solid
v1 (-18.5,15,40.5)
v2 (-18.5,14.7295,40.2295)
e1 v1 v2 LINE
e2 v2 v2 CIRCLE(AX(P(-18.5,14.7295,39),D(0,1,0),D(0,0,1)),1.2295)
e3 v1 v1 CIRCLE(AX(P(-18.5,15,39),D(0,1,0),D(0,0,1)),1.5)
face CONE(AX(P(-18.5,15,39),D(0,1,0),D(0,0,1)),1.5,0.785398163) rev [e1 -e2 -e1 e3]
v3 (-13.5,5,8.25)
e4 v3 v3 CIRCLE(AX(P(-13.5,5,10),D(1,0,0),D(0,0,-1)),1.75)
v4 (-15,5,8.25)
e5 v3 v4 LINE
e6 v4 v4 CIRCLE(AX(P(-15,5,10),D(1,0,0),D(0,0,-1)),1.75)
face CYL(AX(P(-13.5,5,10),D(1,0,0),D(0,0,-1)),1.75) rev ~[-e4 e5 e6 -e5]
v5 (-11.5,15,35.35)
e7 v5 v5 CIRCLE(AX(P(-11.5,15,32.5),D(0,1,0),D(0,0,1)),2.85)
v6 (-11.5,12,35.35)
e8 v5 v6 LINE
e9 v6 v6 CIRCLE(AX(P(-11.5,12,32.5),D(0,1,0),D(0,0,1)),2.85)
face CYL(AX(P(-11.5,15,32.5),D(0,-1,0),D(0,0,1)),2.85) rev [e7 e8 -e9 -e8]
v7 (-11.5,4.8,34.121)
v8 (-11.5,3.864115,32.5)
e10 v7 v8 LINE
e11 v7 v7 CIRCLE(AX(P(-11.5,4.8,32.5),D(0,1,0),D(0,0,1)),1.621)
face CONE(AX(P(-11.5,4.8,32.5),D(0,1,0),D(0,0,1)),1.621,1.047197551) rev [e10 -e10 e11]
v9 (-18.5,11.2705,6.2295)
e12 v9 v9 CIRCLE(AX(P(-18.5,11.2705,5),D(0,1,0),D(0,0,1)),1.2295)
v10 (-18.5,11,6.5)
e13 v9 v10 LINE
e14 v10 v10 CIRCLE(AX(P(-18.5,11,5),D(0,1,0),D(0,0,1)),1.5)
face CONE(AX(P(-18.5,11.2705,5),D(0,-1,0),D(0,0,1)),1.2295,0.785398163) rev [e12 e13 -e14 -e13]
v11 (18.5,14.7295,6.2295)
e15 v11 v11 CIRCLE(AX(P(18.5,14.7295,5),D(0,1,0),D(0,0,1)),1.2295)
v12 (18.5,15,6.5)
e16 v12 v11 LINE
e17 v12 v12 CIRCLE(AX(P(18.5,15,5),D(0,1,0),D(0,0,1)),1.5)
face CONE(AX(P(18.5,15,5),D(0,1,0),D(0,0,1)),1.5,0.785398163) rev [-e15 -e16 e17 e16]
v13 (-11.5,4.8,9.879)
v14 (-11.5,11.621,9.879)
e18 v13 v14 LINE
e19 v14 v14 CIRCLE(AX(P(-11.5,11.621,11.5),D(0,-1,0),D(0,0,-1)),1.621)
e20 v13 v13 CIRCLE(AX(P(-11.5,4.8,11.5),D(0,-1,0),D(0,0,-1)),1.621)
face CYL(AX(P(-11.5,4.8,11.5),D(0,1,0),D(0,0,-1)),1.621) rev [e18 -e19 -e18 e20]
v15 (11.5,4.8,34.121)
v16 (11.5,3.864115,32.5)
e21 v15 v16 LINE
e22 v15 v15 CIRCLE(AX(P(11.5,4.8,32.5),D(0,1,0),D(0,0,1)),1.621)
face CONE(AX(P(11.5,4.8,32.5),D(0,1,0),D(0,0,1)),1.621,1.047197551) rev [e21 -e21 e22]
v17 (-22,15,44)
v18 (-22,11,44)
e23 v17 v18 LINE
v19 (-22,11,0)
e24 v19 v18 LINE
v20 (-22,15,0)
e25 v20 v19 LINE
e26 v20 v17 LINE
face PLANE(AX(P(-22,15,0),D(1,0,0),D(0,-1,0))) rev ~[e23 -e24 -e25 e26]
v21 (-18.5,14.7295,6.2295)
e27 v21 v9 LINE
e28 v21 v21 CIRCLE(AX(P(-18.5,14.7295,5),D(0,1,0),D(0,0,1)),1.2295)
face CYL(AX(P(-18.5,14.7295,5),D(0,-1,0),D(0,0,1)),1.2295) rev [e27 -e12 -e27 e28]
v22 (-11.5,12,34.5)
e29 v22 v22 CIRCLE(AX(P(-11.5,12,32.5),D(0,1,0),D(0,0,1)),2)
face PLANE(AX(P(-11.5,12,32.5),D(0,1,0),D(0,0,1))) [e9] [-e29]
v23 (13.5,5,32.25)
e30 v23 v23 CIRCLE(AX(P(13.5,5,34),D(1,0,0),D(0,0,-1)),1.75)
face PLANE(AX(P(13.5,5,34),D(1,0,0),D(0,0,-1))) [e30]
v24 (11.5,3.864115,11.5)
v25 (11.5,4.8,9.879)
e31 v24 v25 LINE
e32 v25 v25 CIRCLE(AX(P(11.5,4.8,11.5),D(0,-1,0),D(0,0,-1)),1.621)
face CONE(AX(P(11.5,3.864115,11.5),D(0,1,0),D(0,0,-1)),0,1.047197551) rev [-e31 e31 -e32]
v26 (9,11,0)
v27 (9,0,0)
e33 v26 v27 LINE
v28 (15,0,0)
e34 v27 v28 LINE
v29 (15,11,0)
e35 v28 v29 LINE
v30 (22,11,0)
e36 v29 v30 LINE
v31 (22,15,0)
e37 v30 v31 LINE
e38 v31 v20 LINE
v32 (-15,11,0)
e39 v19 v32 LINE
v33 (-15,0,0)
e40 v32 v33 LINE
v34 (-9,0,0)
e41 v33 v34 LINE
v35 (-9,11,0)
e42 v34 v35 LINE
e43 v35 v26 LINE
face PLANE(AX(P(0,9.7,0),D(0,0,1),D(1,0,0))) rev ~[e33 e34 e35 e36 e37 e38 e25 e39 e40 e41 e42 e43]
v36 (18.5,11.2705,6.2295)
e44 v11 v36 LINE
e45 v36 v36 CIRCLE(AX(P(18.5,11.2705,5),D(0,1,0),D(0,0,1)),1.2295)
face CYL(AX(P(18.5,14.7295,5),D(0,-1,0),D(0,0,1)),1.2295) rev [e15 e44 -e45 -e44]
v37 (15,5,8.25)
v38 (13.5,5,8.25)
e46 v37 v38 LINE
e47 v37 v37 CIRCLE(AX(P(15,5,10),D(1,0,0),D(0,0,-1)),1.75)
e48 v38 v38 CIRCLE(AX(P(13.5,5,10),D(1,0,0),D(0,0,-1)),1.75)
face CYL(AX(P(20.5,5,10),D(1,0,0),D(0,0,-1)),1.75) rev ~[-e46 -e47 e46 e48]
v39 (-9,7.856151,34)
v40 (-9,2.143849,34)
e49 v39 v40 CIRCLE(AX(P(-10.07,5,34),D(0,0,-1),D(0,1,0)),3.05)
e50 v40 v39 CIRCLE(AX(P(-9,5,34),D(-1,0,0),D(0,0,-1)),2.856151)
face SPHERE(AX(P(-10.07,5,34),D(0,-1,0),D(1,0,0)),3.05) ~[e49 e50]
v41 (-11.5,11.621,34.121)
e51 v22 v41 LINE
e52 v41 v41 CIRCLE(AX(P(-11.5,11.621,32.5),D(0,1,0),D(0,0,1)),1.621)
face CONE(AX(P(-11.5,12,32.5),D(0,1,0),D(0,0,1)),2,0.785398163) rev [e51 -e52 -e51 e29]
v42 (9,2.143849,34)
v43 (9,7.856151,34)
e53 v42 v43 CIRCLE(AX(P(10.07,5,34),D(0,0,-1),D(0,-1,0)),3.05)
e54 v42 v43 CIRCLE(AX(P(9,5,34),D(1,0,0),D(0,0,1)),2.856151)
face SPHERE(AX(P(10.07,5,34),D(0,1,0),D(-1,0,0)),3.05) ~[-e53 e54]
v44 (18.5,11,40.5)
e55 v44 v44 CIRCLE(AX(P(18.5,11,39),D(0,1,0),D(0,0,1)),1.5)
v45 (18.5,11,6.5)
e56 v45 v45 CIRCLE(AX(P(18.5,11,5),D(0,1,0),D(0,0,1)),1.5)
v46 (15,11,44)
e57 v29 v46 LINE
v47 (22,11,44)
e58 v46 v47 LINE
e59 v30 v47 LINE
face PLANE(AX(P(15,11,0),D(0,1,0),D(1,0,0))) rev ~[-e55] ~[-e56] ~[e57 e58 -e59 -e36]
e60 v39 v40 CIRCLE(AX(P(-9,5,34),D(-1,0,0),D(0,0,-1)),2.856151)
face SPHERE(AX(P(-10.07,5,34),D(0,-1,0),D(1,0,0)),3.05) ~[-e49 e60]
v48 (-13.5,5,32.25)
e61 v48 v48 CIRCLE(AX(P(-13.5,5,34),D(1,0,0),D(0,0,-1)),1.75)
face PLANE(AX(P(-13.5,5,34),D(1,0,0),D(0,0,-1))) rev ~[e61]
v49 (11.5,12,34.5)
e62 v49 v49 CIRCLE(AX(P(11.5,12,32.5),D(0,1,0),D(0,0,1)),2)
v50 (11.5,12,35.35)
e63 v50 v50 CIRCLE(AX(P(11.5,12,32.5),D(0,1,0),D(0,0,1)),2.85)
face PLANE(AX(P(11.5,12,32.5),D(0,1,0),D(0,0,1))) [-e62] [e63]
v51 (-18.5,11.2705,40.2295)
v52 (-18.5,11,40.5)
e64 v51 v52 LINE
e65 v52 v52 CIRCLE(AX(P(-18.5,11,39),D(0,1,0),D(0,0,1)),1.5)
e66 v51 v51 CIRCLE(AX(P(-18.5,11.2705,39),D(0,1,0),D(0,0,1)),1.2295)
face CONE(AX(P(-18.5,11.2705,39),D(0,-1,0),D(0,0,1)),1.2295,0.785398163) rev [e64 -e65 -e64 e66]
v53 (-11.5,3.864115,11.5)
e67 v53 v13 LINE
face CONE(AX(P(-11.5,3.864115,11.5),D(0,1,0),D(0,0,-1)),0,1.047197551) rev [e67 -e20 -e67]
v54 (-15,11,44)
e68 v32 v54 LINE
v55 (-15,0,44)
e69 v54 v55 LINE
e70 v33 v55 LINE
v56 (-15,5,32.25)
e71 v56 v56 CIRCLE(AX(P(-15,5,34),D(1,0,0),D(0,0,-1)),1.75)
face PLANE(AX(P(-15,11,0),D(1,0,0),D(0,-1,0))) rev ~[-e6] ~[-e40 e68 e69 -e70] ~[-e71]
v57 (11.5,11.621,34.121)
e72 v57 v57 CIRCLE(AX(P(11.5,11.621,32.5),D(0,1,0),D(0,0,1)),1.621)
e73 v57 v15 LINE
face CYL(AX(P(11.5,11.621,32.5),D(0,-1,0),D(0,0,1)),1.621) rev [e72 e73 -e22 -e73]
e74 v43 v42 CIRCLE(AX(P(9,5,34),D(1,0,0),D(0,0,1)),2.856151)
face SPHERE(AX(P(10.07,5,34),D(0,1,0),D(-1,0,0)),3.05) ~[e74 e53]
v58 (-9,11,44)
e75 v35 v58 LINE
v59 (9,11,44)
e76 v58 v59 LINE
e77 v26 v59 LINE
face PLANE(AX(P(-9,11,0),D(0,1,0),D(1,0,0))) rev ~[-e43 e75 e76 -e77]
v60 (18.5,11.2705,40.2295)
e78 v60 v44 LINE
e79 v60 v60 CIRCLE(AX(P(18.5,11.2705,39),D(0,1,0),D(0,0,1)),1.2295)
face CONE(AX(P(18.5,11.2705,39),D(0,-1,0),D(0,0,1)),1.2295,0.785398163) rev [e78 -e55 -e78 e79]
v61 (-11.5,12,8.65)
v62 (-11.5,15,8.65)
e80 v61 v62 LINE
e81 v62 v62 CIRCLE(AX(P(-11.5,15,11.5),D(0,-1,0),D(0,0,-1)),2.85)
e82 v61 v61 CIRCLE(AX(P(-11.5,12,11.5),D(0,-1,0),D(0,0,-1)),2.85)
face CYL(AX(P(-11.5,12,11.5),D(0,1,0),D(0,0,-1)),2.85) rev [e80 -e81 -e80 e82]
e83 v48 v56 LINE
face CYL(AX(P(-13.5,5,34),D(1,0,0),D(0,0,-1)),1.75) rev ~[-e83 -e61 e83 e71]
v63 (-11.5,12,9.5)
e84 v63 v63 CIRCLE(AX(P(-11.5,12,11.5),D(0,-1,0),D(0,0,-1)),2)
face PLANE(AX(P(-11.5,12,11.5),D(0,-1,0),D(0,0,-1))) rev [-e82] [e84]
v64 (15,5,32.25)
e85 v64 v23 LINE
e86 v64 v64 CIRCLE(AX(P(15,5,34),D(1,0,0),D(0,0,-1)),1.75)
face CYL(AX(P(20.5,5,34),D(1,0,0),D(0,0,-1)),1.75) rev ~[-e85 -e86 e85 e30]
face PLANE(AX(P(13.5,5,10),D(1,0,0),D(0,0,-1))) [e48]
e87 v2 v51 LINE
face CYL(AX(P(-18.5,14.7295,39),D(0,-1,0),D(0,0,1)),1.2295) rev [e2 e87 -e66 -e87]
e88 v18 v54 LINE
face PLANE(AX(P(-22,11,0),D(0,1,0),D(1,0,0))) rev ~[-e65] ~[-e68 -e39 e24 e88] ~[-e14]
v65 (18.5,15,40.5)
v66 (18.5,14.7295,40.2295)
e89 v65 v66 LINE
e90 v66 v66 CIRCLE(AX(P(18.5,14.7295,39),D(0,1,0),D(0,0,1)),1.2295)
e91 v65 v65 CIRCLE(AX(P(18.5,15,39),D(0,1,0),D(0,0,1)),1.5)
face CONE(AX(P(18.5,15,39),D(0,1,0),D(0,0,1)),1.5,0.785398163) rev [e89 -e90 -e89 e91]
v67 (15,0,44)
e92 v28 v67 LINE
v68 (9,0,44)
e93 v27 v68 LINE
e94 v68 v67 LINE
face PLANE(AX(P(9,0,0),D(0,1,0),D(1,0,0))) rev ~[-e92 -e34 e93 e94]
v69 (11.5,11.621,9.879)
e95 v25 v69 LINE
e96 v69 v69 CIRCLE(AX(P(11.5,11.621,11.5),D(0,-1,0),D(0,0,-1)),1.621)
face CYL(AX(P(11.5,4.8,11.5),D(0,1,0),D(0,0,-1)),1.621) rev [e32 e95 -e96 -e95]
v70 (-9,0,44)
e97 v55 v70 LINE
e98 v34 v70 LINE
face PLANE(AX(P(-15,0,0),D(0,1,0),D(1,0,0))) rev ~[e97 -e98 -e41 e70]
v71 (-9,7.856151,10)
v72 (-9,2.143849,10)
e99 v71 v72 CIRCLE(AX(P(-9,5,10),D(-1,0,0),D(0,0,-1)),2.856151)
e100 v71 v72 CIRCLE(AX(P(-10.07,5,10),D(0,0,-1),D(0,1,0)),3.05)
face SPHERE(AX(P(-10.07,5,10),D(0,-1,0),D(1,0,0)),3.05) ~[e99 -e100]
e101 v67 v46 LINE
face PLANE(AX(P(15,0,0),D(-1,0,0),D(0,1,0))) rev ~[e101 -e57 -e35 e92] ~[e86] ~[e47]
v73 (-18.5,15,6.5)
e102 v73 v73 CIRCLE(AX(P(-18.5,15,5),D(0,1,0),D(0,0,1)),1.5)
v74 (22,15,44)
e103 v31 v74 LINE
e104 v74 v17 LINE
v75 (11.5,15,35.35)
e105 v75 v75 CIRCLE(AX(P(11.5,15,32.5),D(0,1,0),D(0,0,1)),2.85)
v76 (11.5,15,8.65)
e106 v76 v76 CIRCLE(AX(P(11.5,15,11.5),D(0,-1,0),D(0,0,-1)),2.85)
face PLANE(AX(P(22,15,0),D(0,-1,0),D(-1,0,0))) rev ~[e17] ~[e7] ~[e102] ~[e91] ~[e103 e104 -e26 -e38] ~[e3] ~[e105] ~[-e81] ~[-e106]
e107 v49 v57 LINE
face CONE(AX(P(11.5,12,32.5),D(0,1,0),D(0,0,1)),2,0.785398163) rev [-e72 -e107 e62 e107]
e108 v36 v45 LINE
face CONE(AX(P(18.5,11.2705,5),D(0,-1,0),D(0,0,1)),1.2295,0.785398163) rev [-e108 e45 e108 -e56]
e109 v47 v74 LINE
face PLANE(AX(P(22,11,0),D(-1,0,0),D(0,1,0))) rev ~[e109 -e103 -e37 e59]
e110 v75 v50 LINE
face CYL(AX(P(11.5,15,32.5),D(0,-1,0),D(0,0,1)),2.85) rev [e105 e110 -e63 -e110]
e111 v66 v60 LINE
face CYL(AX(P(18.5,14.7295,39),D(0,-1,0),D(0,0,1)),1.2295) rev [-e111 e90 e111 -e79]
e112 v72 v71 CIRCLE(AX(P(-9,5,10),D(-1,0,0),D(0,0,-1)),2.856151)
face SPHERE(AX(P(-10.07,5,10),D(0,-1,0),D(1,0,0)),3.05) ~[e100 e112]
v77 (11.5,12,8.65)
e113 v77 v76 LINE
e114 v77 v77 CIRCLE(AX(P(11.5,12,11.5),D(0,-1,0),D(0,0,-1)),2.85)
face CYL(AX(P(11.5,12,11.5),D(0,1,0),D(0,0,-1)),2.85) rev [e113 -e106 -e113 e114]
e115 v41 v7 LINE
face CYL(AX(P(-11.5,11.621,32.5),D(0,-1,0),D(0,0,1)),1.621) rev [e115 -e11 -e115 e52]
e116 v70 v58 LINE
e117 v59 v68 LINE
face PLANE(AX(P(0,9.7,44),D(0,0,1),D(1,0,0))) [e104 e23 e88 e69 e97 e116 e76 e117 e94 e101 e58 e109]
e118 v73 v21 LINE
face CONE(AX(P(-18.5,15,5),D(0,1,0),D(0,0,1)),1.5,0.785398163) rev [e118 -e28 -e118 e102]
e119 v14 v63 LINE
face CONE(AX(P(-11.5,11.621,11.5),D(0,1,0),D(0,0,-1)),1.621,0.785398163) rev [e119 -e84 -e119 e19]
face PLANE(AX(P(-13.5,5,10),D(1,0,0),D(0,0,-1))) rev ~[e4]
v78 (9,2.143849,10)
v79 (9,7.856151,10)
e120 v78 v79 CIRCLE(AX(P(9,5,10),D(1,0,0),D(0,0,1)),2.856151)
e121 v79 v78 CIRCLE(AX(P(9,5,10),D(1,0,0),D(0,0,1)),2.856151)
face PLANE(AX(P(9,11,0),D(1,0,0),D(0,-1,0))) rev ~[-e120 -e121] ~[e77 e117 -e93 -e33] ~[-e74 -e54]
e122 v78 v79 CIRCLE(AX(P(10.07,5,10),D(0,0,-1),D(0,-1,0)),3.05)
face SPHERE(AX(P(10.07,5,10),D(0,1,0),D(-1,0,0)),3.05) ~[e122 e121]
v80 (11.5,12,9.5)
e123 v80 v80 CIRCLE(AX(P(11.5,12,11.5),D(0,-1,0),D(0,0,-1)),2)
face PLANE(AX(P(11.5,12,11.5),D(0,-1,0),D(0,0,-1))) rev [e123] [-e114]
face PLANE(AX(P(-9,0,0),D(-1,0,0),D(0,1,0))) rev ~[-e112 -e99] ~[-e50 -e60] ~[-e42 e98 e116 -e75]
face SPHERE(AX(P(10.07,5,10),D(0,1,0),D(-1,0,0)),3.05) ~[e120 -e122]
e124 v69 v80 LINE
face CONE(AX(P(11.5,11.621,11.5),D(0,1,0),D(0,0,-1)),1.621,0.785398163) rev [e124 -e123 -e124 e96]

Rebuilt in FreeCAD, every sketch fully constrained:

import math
import FreeCAD as App
import Part
import Sketcher
from FreeCAD import Vector
Q = App.Units.Quantity


def add_polygon(sketch, points):
    """Adds a closed chain of lines whose ends are joined by coincident constraints."""
    first, n = sketch.GeometryCount, len(points)
    for a, b in zip(points, points[1:] + points[:1]):
        sketch.addGeometry(Part.LineSegment(App.Vector(*a, 0), App.Vector(*b, 0)), False)
    for i in range(n):
        sketch.addConstraint(Sketcher.Constraint("Coincident", first + i, 2, first + (i + 1) % n, 1))

doc = App.newDocument("Part")
params = doc.addObject("Spreadsheet::Sheet", "Params")
for row, (alias, value) in enumerate([
    ("sketch1_width", "7 mm"),
    ("sketch1_width2", "6 mm"),
    ("sketch1_width3", "18 mm"),
    ("sketch1_height", "4 mm"),
    ("sketch1_height2", "11 mm"),
    ("pad1_length", "44 mm"),
    ("sketch2_height", "4 mm"),
    ("sketch2_width", "1.5 mm"),
    ("groove_angle", "360 deg"),
    ("sketch3_height", "4 mm"),
    ("sketch3_width", "1.5 mm"),
    ("groove2_angle", "360 deg"),
    ("sketch4_radius", "3.05 mm"),
    ("revolution_angle", "360 deg"),
    ("sketch5_radius", "3.05 mm"),
    ("revolution2_angle", "360 deg"),
    ("sketch6_radius", "3.05 mm"),
    ("revolution3_angle", "360 deg"),
    ("sketch7_radius", "3.05 mm"),
    ("revolution4_angle", "360 deg"),
    ("sketch8_diameter", "3.5 mm"),
    ("pocket1_length", "7 mm"),
    ("sketch9_diameter", "3.5 mm"),
    ("pocket2_length", "7 mm"),
    ("sketch10_diameter", "3.5 mm"),
    ("pocket3_length", "7 mm"),
    ("sketch11_diameter", "3.5 mm"),
    ("pocket4_length", "7 mm"),
    ("sketch12_height", "4 mm"),
    ("sketch12_width", "1.5 mm"),
    ("groove3_angle", "360 deg"),
    ("sketch13_height", "4 mm"),
    ("sketch13_width", "1.5 mm"),
    ("groove4_angle", "360 deg"),
    ("sketch14_width", "3 mm"),
    ("sketch14_height", "2.85 mm"),
    ("groove5_angle", "360 deg"),
    ("sketch15_width", "3 mm"),
    ("sketch15_height", "2.85 mm"),
    ("groove6_angle", "360 deg"),
    ("sketch16_width", "3 mm"),
    ("sketch16_height", "2.85 mm"),
    ("groove7_angle", "360 deg"),
    ("sketch17_width", "3 mm"),
    ("sketch17_height", "2.85 mm"),
    ("groove8_angle", "360 deg"),
], start=1):
    params.set(f"A{row}", alias)
    params.set(f"B{row}", "=" + value)
    params.setAlias(f"B{row}", alias)

body = doc.addObject("PartDesign::Body", "Body")

sketch1 = body.newObject("Sketcher::SketchObject", "Sketch")
sketch1.AttachmentSupport = (doc.getObject("XY_Plane"), [""])
sketch1.MapMode = "FlatFace"
add_polygon(sketch1, [(-22, 15), (-22, 11), (-15, 11), (-15, 0), (-9, 0), (-9, 11), (9, 11), (9, 0), (15, 0), (15, 11), (22, 11), (22, 15)])
sketch1.addConstraint(Sketcher.Constraint("Vertical", 0))
sketch1.addConstraint(Sketcher.Constraint("Horizontal", 1))
sketch1.addConstraint(Sketcher.Constraint("Vertical", 2))
sketch1.addConstraint(Sketcher.Constraint("Horizontal", 3))
sketch1.addConstraint(Sketcher.Constraint("Vertical", 4))
sketch1.addConstraint(Sketcher.Constraint("Horizontal", 5))
sketch1.addConstraint(Sketcher.Constraint("Vertical", 6))
sketch1.addConstraint(Sketcher.Constraint("Horizontal", 7))
sketch1.addConstraint(Sketcher.Constraint("Vertical", 8))
sketch1.addConstraint(Sketcher.Constraint("Horizontal", 9))
sketch1.addConstraint(Sketcher.Constraint("Vertical", 10))
sketch1.addConstraint(Sketcher.Constraint("Horizontal", 11))
sketch1.addConstraint(Sketcher.Constraint("Symmetric", 3, 2, 6, 2, -1, 1))
sketch1.addConstraint(Sketcher.Constraint("Symmetric", 2, 2, 7, 2, -2))
sketch1.addConstraint(Sketcher.Constraint("Symmetric", 0, 2, 9, 2, -2))
sketch1.addConstraint(Sketcher.Constraint("Horizontal", 1, 2, 4, 2))
sketch1.addConstraint(Sketcher.Constraint("DistanceX", 1, 1, 1, 2, 7.0))
sketch1.addConstraint(Sketcher.Constraint("DistanceX", 3, 1, 3, 2, 6.0))
sketch1.addConstraint(Sketcher.Constraint("DistanceX", 5, 1, 5, 2, 18.0))
sketch1.addConstraint(Sketcher.Constraint("DistanceY", 0, 2, 0, 1, 4.0))
sketch1.addConstraint(Sketcher.Constraint("DistanceY", 2, 2, 2, 1, 11.0))
sketch1.setExpression("Constraints[28]", "Params.sketch1_width")
sketch1.setExpression("Constraints[29]", "Params.sketch1_width2")
sketch1.setExpression("Constraints[30]", "Params.sketch1_width3")
sketch1.setExpression("Constraints[31]", "Params.sketch1_height")
sketch1.setExpression("Constraints[32]", "Params.sketch1_height2")
pad1 = body.newObject("PartDesign::Pad", "Pad")
pad1.Profile = sketch1
pad1.setExpression("Length", "Params.pad1_length")

sketch2 = body.newObject("Sketcher::SketchObject", "Sketch001")
sketch2.AttachmentSupport = (doc.getObject("XY_Plane"), [""])
sketch2.MapMode = "FlatFace"
sketch2.AttachmentOffset = App.Placement(Vector(0, 0, 5), App.Rotation())
add_polygon(sketch2, [(20, 15), (18.5, 15), (18.5, 11), (20, 11), (19.73, 11.27), (19.73, 14.73)])
sketch2.addGeometry(Part.LineSegment(Vector(18.5, 11, 0), Vector(18.5, 15, 0)), True)
sketch2.addConstraint(Sketcher.Constraint("Horizontal", 0))
sketch2.addConstraint(Sketcher.Constraint("Vertical", 1))
sketch2.addConstraint(Sketcher.Constraint("Horizontal", 2))
sketch2.addConstraint(Sketcher.Constraint("Vertical", 4))
sketch2.addConstraint(Sketcher.Constraint("Vertical", 6))
sketch2.addConstraint(Sketcher.Constraint("Coincident", 6, 1, 1, 2))
sketch2.addConstraint(Sketcher.Constraint("Perpendicular", 3, 5))
sketch2.addConstraint(Sketcher.Constraint("Horizontal", 5, 2, 6, 2))
sketch2.addConstraint(Sketcher.Constraint("Vertical", 2, 2, 5, 2))
sketch2.addConstraint(Sketcher.Constraint("Equal", 3, 5))
sketch2.addConstraint(Sketcher.Constraint("DistanceY", 1, 2, 1, 1, 4.0))
sketch2.addConstraint(Sketcher.Constraint("DistanceX", 0, 2, 0, 1, 1.5))
sketch2.addConstraint(Sketcher.Constraint("DistanceY", -1, 1, 0, 2, 15.0))
sketch2.addConstraint(Sketcher.Constraint("DistanceX", -1, 1, 2, 2, 20.0))
sketch2.addConstraint(Sketcher.Constraint("DistanceY", 4, 1, 4, 2, 3.459))
sketch2.setExpression("Constraints[16]", "Params.sketch2_height")
sketch2.setExpression("Constraints[17]", "Params.sketch2_width")
groove = body.newObject("PartDesign::Groove", "Groove")
groove.Profile = sketch2
groove.ReferenceAxis = (sketch2, ["Axis0"])
groove.setExpression("Angle", "Params.groove_angle")

sketch3 = body.newObject("Sketcher::SketchObject", "Sketch002")
sketch3.AttachmentSupport = (doc.getObject("XY_Plane"), [""])
sketch3.MapMode = "FlatFace"
sketch3.AttachmentOffset = App.Placement(Vector(0, 0, 39), App.Rotation())
add_polygon(sketch3, [(20, 15), (18.5, 15), (18.5, 11), (20, 11), (19.73, 11.27), (19.73, 14.73)])
sketch3.addGeometry(Part.LineSegment(Vector(18.5, 11, 0), Vector(18.5, 15, 0)), True)
sketch3.addConstraint(Sketcher.Constraint("Horizontal", 0))
sketch3.addConstraint(Sketcher.Constraint("Vertical", 1))
sketch3.addConstraint(Sketcher.Constraint("Horizontal", 2))
sketch3.addConstraint(Sketcher.Constraint("Vertical", 4))
sketch3.addConstraint(Sketcher.Constraint("Vertical", 6))
sketch3.addConstraint(Sketcher.Constraint("Coincident", 6, 1, 1, 2))
sketch3.addConstraint(Sketcher.Constraint("Perpendicular", 3, 5))
sketch3.addConstraint(Sketcher.Constraint("Horizontal", 5, 2, 6, 2))
sketch3.addConstraint(Sketcher.Constraint("Vertical", 2, 2, 5, 2))
sketch3.addConstraint(Sketcher.Constraint("Equal", 3, 5))
sketch3.addConstraint(Sketcher.Constraint("DistanceY", 1, 2, 1, 1, 4.0))
sketch3.addConstraint(Sketcher.Constraint("DistanceX", 0, 2, 0, 1, 1.5))
sketch3.addConstraint(Sketcher.Constraint("DistanceY", -1, 1, 0, 2, 15.0))
sketch3.addConstraint(Sketcher.Constraint("DistanceX", -1, 1, 2, 2, 20.0))
sketch3.addConstraint(Sketcher.Constraint("DistanceY", 4, 1, 4, 2, 3.459))
sketch3.setExpression("Constraints[16]", "Params.sketch3_height")
sketch3.setExpression("Constraints[17]", "Params.sketch3_width")
groove2 = body.newObject("PartDesign::Groove", "Groove001")
groove2.Profile = sketch3
groove2.ReferenceAxis = (sketch3, ["Axis0"])
groove2.setExpression("Angle", "Params.groove2_angle")

sketch4 = body.newObject("Sketcher::SketchObject", "Sketch003")
sketch4.AttachmentSupport = (doc.getObject("XY_Plane"), [""])
sketch4.MapMode = "FlatFace"
sketch4.AttachmentOffset = App.Placement(Vector(0, 0, 10), App.Rotation())
sketch4.addGeometry(Part.LineSegment(Vector(-10.1, 8.1, 0), Vector(-10.1, 1.9, 0)), False)
sketch4.addGeometry(Part.ArcOfCircle(Part.Circle(Vector(-10.1, 5, 0), Vector(0, 0, 1), 3), math.radians(-90), math.radians(90)), False)
sketch4.addGeometry(Part.LineSegment(Vector(-10.1, 1.9, 0), Vector(-10.1, 8.1, 0)), True)
sketch4.addConstraint(Sketcher.Constraint("Coincident", 0, 1, 1, 2))
sketch4.addConstraint(Sketcher.Constraint("Coincident", 1, 1, 0, 2))
sketch4.addConstraint(Sketcher.Constraint("Vertical", 0))
sketch4.addConstraint(Sketcher.Constraint("Vertical", 2))
sketch4.addConstraint(Sketcher.Constraint("Coincident", 2, 1, 1, 1))
sketch4.addConstraint(Sketcher.Constraint("Vertical", 1, 3, 0, 1))
sketch4.addConstraint(Sketcher.Constraint("Equal", 0, 2))
sketch4.addConstraint(Sketcher.Constraint("Radius", 1, 3.05))
sketch4.addConstraint(Sketcher.Constraint("DistanceY", -1, 1, 1, 3, 5.0))
sketch4.addConstraint(Sketcher.Constraint("DistanceX", 1, 3, -1, 1, 10.07))
sketch4.setExpression("Constraints[7]", "Params.sketch4_radius")
revolution = body.newObject("PartDesign::Revolution", "Revolution")
revolution.Profile = sketch4
revolution.ReferenceAxis = (sketch4, ["Axis0"])
revolution.setExpression("Angle", "Params.revolution_angle")

sketch5 = body.newObject("Sketcher::SketchObject", "Sketch004")
sketch5.AttachmentSupport = (doc.getObject("XY_Plane"), [""])
sketch5.MapMode = "FlatFace"
sketch5.AttachmentOffset = App.Placement(Vector(0, 0, 34), App.Rotation())
sketch5.addGeometry(Part.LineSegment(Vector(-10.1, 8.1, 0), Vector(-10.1, 1.9, 0)), False)
sketch5.addGeometry(Part.ArcOfCircle(Part.Circle(Vector(-10.1, 5, 0), Vector(0, 0, 1), 3), math.radians(-90), math.radians(90)), False)
sketch5.addGeometry(Part.LineSegment(Vector(-10.1, 1.9, 0), Vector(-10.1, 8.1, 0)), True)
sketch5.addConstraint(Sketcher.Constraint("Coincident", 0, 1, 1, 2))
sketch5.addConstraint(Sketcher.Constraint("Coincident", 1, 1, 0, 2))
sketch5.addConstraint(Sketcher.Constraint("Vertical", 0))
sketch5.addConstraint(Sketcher.Constraint("Vertical", 2))
sketch5.addConstraint(Sketcher.Constraint("Coincident", 2, 1, 1, 1))
sketch5.addConstraint(Sketcher.Constraint("Vertical", 1, 3, 0, 1))
sketch5.addConstraint(Sketcher.Constraint("Equal", 0, 2))
sketch5.addConstraint(Sketcher.Constraint("Radius", 1, 3.05))
sketch5.addConstraint(Sketcher.Constraint("DistanceY", -1, 1, 1, 3, 5.0))
sketch5.addConstraint(Sketcher.Constraint("DistanceX", 1, 3, -1, 1, 10.07))
sketch5.setExpression("Constraints[7]", "Params.sketch5_radius")
revolution2 = body.newObject("PartDesign::Revolution", "Revolution001")
revolution2.Profile = sketch5
revolution2.ReferenceAxis = (sketch5, ["Axis0"])
revolution2.setExpression("Angle", "Params.revolution2_angle")

sketch6 = body.newObject("Sketcher::SketchObject", "Sketch005")
sketch6.AttachmentSupport = (doc.getObject("XY_Plane"), [""])
sketch6.MapMode = "FlatFace"
sketch6.AttachmentOffset = App.Placement(Vector(0, 0, 34), App.Rotation())
sketch6.addGeometry(Part.LineSegment(Vector(10.1, 1.9, 0), Vector(10.1, 8.1, 0)), False)
sketch6.addGeometry(Part.ArcOfCircle(Part.Circle(Vector(10.1, 5, 0), Vector(0, 0, 1), 3), math.radians(90), math.radians(270)), False)
sketch6.addGeometry(Part.LineSegment(Vector(10.1, 8.1, 0), Vector(10.1, 1.9, 0)), True)
sketch6.addConstraint(Sketcher.Constraint("Coincident", 0, 1, 1, 2))
sketch6.addConstraint(Sketcher.Constraint("Coincident", 1, 1, 0, 2))
sketch6.addConstraint(Sketcher.Constraint("Vertical", 0))
sketch6.addConstraint(Sketcher.Constraint("Vertical", 2))
sketch6.addConstraint(Sketcher.Constraint("Coincident", 2, 1, 1, 1))
sketch6.addConstraint(Sketcher.Constraint("Vertical", 1, 3, 0, 1))
sketch6.addConstraint(Sketcher.Constraint("Equal", 0, 2))
sketch6.addConstraint(Sketcher.Constraint("Radius", 1, 3.05))
sketch6.addConstraint(Sketcher.Constraint("DistanceY", -1, 1, 1, 3, 5.0))
sketch6.addConstraint(Sketcher.Constraint("DistanceX", -1, 1, 1, 3, 10.07))
sketch6.setExpression("Constraints[7]", "Params.sketch6_radius")
revolution3 = body.newObject("PartDesign::Revolution", "Revolution002")
revolution3.Profile = sketch6
revolution3.ReferenceAxis = (sketch6, ["Axis0"])
revolution3.setExpression("Angle", "Params.revolution3_angle")

sketch7 = body.newObject("Sketcher::SketchObject", "Sketch006")
sketch7.AttachmentSupport = (doc.getObject("XY_Plane"), [""])
sketch7.MapMode = "FlatFace"
sketch7.AttachmentOffset = App.Placement(Vector(0, 0, 10), App.Rotation())
sketch7.addGeometry(Part.LineSegment(Vector(10.1, 1.9, 0), Vector(10.1, 8.1, 0)), False)
sketch7.addGeometry(Part.ArcOfCircle(Part.Circle(Vector(10.1, 5, 0), Vector(0, 0, 1), 3), math.radians(90), math.radians(270)), False)
sketch7.addGeometry(Part.LineSegment(Vector(10.1, 8.1, 0), Vector(10.1, 1.9, 0)), True)
sketch7.addConstraint(Sketcher.Constraint("Coincident", 0, 1, 1, 2))
sketch7.addConstraint(Sketcher.Constraint("Coincident", 1, 1, 0, 2))
sketch7.addConstraint(Sketcher.Constraint("Vertical", 0))
sketch7.addConstraint(Sketcher.Constraint("Vertical", 2))
sketch7.addConstraint(Sketcher.Constraint("Coincident", 2, 1, 1, 1))
sketch7.addConstraint(Sketcher.Constraint("Vertical", 1, 3, 0, 1))
sketch7.addConstraint(Sketcher.Constraint("Equal", 0, 2))
sketch7.addConstraint(Sketcher.Constraint("Radius", 1, 3.05))
sketch7.addConstraint(Sketcher.Constraint("DistanceY", -1, 1, 1, 3, 5.0))
sketch7.addConstraint(Sketcher.Constraint("DistanceX", -1, 1, 1, 3, 10.07))
sketch7.setExpression("Constraints[7]", "Params.sketch7_radius")
revolution4 = body.newObject("PartDesign::Revolution", "Revolution003")
revolution4.Profile = sketch7
revolution4.ReferenceAxis = (sketch7, ["Axis0"])
revolution4.setExpression("Angle", "Params.revolution4_angle")

sketch8 = body.newObject("Sketcher::SketchObject", "Sketch007")
sketch8.AttachmentSupport = (doc.getObject("YZ_Plane"), [""])
sketch8.MapMode = "FlatFace"
sketch8.AttachmentOffset = App.Placement(Vector(0, 0, 20.5), App.Rotation())
sketch8.addGeometry(Part.Circle(Vector(5, 10, 0), Vector(0, 0, 1), 1.8), False)
sketch8.addConstraint(Sketcher.Constraint("Diameter", 0, 3.5))
sketch8.addConstraint(Sketcher.Constraint("DistanceX", -1, 1, 0, 3, 5.0))
sketch8.addConstraint(Sketcher.Constraint("DistanceY", -1, 1, 0, 3, 10.0))
sketch8.setExpression("Constraints[0]", "Params.sketch8_diameter")
pocket1 = body.newObject("PartDesign::Pocket", "Pocket")
pocket1.Profile = sketch8
pocket1.setExpression("Length", "Params.pocket1_length")

sketch9 = body.newObject("Sketcher::SketchObject", "Sketch008")
sketch9.AttachmentSupport = (doc.getObject("YZ_Plane"), [""])
sketch9.MapMode = "FlatFace"
sketch9.AttachmentOffset = App.Placement(Vector(0, 0, 20.5), App.Rotation())
sketch9.addGeometry(Part.Circle(Vector(5, 34, 0), Vector(0, 0, 1), 1.8), False)
sketch9.addConstraint(Sketcher.Constraint("Diameter", 0, 3.5))
sketch9.addConstraint(Sketcher.Constraint("DistanceX", -1, 1, 0, 3, 5.0))
sketch9.addConstraint(Sketcher.Constraint("DistanceY", -1, 1, 0, 3, 34.0))
sketch9.setExpression("Constraints[0]", "Params.sketch9_diameter")
pocket2 = body.newObject("PartDesign::Pocket", "Pocket001")
pocket2.Profile = sketch9
pocket2.setExpression("Length", "Params.pocket2_length")

sketch10 = body.newObject("Sketcher::SketchObject", "Sketch009")
sketch10.AttachmentSupport = (doc.getObject("YZ_Plane"), [""])
sketch10.MapMode = "FlatFace"
sketch10.AttachmentOffset = App.Placement(Vector(0, 0, -13.5), App.Rotation())
sketch10.addGeometry(Part.Circle(Vector(5, 10, 0), Vector(0, 0, 1), 1.8), False)
sketch10.addConstraint(Sketcher.Constraint("Diameter", 0, 3.5))
sketch10.addConstraint(Sketcher.Constraint("DistanceX", -1, 1, 0, 3, 5.0))
sketch10.addConstraint(Sketcher.Constraint("DistanceY", -1, 1, 0, 3, 10.0))
sketch10.setExpression("Constraints[0]", "Params.sketch10_diameter")
pocket3 = body.newObject("PartDesign::Pocket", "Pocket002")
pocket3.Profile = sketch10
pocket3.setExpression("Length", "Params.pocket3_length")

sketch11 = body.newObject("Sketcher::SketchObject", "Sketch010")
sketch11.AttachmentSupport = (doc.getObject("YZ_Plane"), [""])
sketch11.MapMode = "FlatFace"
sketch11.AttachmentOffset = App.Placement(Vector(0, 0, -13.5), App.Rotation())
sketch11.addGeometry(Part.Circle(Vector(5, 34, 0), Vector(0, 0, 1), 1.8), False)
sketch11.addConstraint(Sketcher.Constraint("Diameter", 0, 3.5))
sketch11.addConstraint(Sketcher.Constraint("DistanceX", -1, 1, 0, 3, 5.0))
sketch11.addConstraint(Sketcher.Constraint("DistanceY", -1, 1, 0, 3, 34.0))
sketch11.setExpression("Constraints[0]", "Params.sketch11_diameter")
pocket4 = body.newObject("PartDesign::Pocket", "Pocket003")
pocket4.Profile = sketch11
pocket4.setExpression("Length", "Params.pocket4_length")

sketch12 = body.newObject("Sketcher::SketchObject", "Sketch011")
sketch12.AttachmentSupport = (doc.getObject("XY_Plane"), [""])
sketch12.MapMode = "FlatFace"
sketch12.AttachmentOffset = App.Placement(Vector(0, 0, 5), App.Rotation())
add_polygon(sketch12, [(-17, 15), (-18.5, 15), (-18.5, 11), (-17, 11), (-17.27, 11.27), (-17.27, 14.73)])
sketch12.addGeometry(Part.LineSegment(Vector(-18.5, 11, 0), Vector(-18.5, 15, 0)), True)
sketch12.addConstraint(Sketcher.Constraint("Horizontal", 0))
sketch12.addConstraint(Sketcher.Constraint("Vertical", 1))
sketch12.addConstraint(Sketcher.Constraint("Horizontal", 2))
sketch12.addConstraint(Sketcher.Constraint("Vertical", 4))
sketch12.addConstraint(Sketcher.Constraint("Vertical", 6))
sketch12.addConstraint(Sketcher.Constraint("Coincident", 6, 1, 1, 2))
sketch12.addConstraint(Sketcher.Constraint("Perpendicular", 3, 5))
sketch12.addConstraint(Sketcher.Constraint("Horizontal", 5, 2, 6, 2))
sketch12.addConstraint(Sketcher.Constraint("Vertical", 2, 2, 5, 2))
sketch12.addConstraint(Sketcher.Constraint("Equal", 3, 5))
sketch12.addConstraint(Sketcher.Constraint("DistanceY", 1, 2, 1, 1, 4.0))
sketch12.addConstraint(Sketcher.Constraint("DistanceX", 0, 2, 0, 1, 1.5))
sketch12.addConstraint(Sketcher.Constraint("DistanceY", -1, 1, 0, 2, 15.0))
sketch12.addConstraint(Sketcher.Constraint("DistanceX", 2, 2, -1, 1, 17.0))
sketch12.addConstraint(Sketcher.Constraint("DistanceY", 4, 1, 4, 2, 3.459))
sketch12.setExpression("Constraints[16]", "Params.sketch12_height")
sketch12.setExpression("Constraints[17]", "Params.sketch12_width")
groove3 = body.newObject("PartDesign::Groove", "Groove002")
groove3.Profile = sketch12
groove3.ReferenceAxis = (sketch12, ["Axis0"])
groove3.setExpression("Angle", "Params.groove3_angle")

sketch13 = body.newObject("Sketcher::SketchObject", "Sketch012")
sketch13.AttachmentSupport = (doc.getObject("XY_Plane"), [""])
sketch13.MapMode = "FlatFace"
sketch13.AttachmentOffset = App.Placement(Vector(0, 0, 39), App.Rotation())
add_polygon(sketch13, [(-17, 15), (-18.5, 15), (-18.5, 11), (-17, 11), (-17.27, 11.27), (-17.27, 14.73)])
sketch13.addGeometry(Part.LineSegment(Vector(-18.5, 11, 0), Vector(-18.5, 15, 0)), True)
sketch13.addConstraint(Sketcher.Constraint("Horizontal", 0))
sketch13.addConstraint(Sketcher.Constraint("Vertical", 1))
sketch13.addConstraint(Sketcher.Constraint("Horizontal", 2))
sketch13.addConstraint(Sketcher.Constraint("Vertical", 4))
sketch13.addConstraint(Sketcher.Constraint("Vertical", 6))
sketch13.addConstraint(Sketcher.Constraint("Coincident", 6, 1, 1, 2))
sketch13.addConstraint(Sketcher.Constraint("Perpendicular", 3, 5))
sketch13.addConstraint(Sketcher.Constraint("Horizontal", 5, 2, 6, 2))
sketch13.addConstraint(Sketcher.Constraint("Vertical", 2, 2, 5, 2))
sketch13.addConstraint(Sketcher.Constraint("Equal", 3, 5))
sketch13.addConstraint(Sketcher.Constraint("DistanceY", 1, 2, 1, 1, 4.0))
sketch13.addConstraint(Sketcher.Constraint("DistanceX", 0, 2, 0, 1, 1.5))
sketch13.addConstraint(Sketcher.Constraint("DistanceY", -1, 1, 0, 2, 15.0))
sketch13.addConstraint(Sketcher.Constraint("DistanceX", 2, 2, -1, 1, 17.0))
sketch13.addConstraint(Sketcher.Constraint("DistanceY", 4, 1, 4, 2, 3.459))
sketch13.setExpression("Constraints[16]", "Params.sketch13_height")
sketch13.setExpression("Constraints[17]", "Params.sketch13_width")
groove4 = body.newObject("PartDesign::Groove", "Groove003")
groove4.Profile = sketch13
groove4.ReferenceAxis = (sketch13, ["Axis0"])
groove4.setExpression("Angle", "Params.groove4_angle")

sketch14 = body.newObject("Sketcher::SketchObject", "Sketch013")
sketch14.AttachmentSupport = (doc.getObject("YZ_Plane"), [""])
sketch14.MapMode = "FlatFace"
sketch14.AttachmentOffset = App.Placement(Vector(0, 0, 11.5), App.Rotation())
add_polygon(sketch14, [(4.8, 13.1), (3.9, 11.5), (15, 11.5), (15, 14.3), (12, 14.3), (12, 13.5), (11.6, 13.1)])
sketch14.addGeometry(Part.LineSegment(Vector(15, 11.5, 0), Vector(3.9, 11.5, 0)), True)
sketch14.addConstraint(Sketcher.Constraint("Horizontal", 1))
sketch14.addConstraint(Sketcher.Constraint("Vertical", 2))
sketch14.addConstraint(Sketcher.Constraint("Horizontal", 3))
sketch14.addConstraint(Sketcher.Constraint("Vertical", 4))
sketch14.addConstraint(Sketcher.Constraint("Horizontal", 6))
sketch14.addConstraint(Sketcher.Constraint("Horizontal", 7))
sketch14.addConstraint(Sketcher.Constraint("Coincident", 7, 1, 1, 2))
sketch14.addConstraint(Sketcher.Constraint("Equal", 1, 7))
sketch14.addConstraint(Sketcher.Constraint("DistanceX", 3, 2, 3, 1, 3.0))
sketch14.addConstraint(Sketcher.Constraint("Angle", 0, Q("-120 deg")))
sketch14.addConstraint(Sketcher.Constraint("Angle", 5, Q("-135 deg")))
sketch14.addConstraint(Sketcher.Constraint("DistanceX", -1, 1, 1, 2, 15.0))
sketch14.addConstraint(Sketcher.Constraint("DistanceY", 1, 2, 4, 2, 2.0))
sketch14.addConstraint(Sketcher.Constraint("DistanceY", 2, 1, 2, 2, 2.85))
sketch14.addConstraint(Sketcher.Constraint("DistanceY", -1, 1, 0, 2, 11.5))
sketch14.addConstraint(Sketcher.Constraint("DistanceX", -1, 1, 6, 2, 4.8))
sketch14.addConstraint(Sketcher.Constraint("DistanceX", 6, 2, 6, 1, 6.821))
sketch14.setExpression("Constraints[15]", "Params.sketch14_width")
sketch14.setExpression("Constraints[20]", "Params.sketch14_height")
groove5 = body.newObject("PartDesign::Groove", "Groove004")
groove5.Profile = sketch14
groove5.ReferenceAxis = (sketch14, ["Axis0"])
groove5.setExpression("Angle", "Params.groove5_angle")

sketch15 = body.newObject("Sketcher::SketchObject", "Sketch014")
sketch15.AttachmentSupport = (doc.getObject("YZ_Plane"), [""])
sketch15.MapMode = "FlatFace"
sketch15.AttachmentOffset = App.Placement(Vector(0, 0, 11.5), App.Rotation())
add_polygon(sketch15, [(15, 29.6), (15, 32.5), (3.9, 32.5), (4.8, 30.9), (11.6, 30.9), (12, 30.5), (12, 29.6)])
sketch15.addGeometry(Part.LineSegment(Vector(3.9, 32.5, 0), Vector(15, 32.5, 0)), True)
sketch15.addConstraint(Sketcher.Constraint("Vertical", 0))
sketch15.addConstraint(Sketcher.Constraint("Horizontal", 1))
sketch15.addConstraint(Sketcher.Constraint("Horizontal", 3))
sketch15.addConstraint(Sketcher.Constraint("Vertical", 5))
sketch15.addConstraint(Sketcher.Constraint("Horizontal", 6))
sketch15.addConstraint(Sketcher.Constraint("Horizontal", 7))
sketch15.addConstraint(Sketcher.Constraint("Coincident", 7, 1, 1, 2))
sketch15.addConstraint(Sketcher.Constraint("Vertical", 6, 2, 7, 2))
sketch15.addConstraint(Sketcher.Constraint("DistanceX", 6, 1, 6, 2, 3.0))
sketch15.addConstraint(Sketcher.Constraint("Angle", 2, Q("-60 deg")))
sketch15.addConstraint(Sketcher.Constraint("Angle", 4, Q("-45 deg")))
sketch15.addConstraint(Sketcher.Constraint("DistanceX", -1, 1, 0, 2, 15.0))
sketch15.addConstraint(Sketcher.Constraint("DistanceY", 4, 2, 0, 2, 2.0))
sketch15.addConstraint(Sketcher.Constraint("DistanceY", 0, 1, 0, 2, 2.85))
sketch15.addConstraint(Sketcher.Constraint("DistanceY", -1, 1, 0, 2, 32.5))
sketch15.addConstraint(Sketcher.Constraint("DistanceX", -1, 1, 2, 2, 4.8))
sketch15.addConstraint(Sketcher.Constraint("DistanceX", 3, 1, 3, 2, 6.821))
sketch15.setExpression("Constraints[15]", "Params.sketch15_width")
sketch15.setExpression("Constraints[20]", "Params.sketch15_height")
groove6 = body.newObject("PartDesign::Groove", "Groove005")
groove6.Profile = sketch15
groove6.ReferenceAxis = (sketch15, ["Axis0"])
groove6.setExpression("Angle", "Params.groove6_angle")

sketch16 = body.newObject("Sketcher::SketchObject", "Sketch015")
sketch16.AttachmentSupport = (doc.getObject("YZ_Plane"), [""])
sketch16.MapMode = "FlatFace"
sketch16.AttachmentOffset = App.Placement(Vector(0, 0, -11.5), App.Rotation())
add_polygon(sketch16, [(4.8, 13.1), (3.9, 11.5), (15, 11.5), (15, 14.3), (12, 14.3), (12, 13.5), (11.6, 13.1)])
sketch16.addGeometry(Part.LineSegment(Vector(15, 11.5, 0), Vector(3.9, 11.5, 0)), True)
sketch16.addConstraint(Sketcher.Constraint("Horizontal", 1))
sketch16.addConstraint(Sketcher.Constraint("Vertical", 2))
sketch16.addConstraint(Sketcher.Constraint("Horizontal", 3))
sketch16.addConstraint(Sketcher.Constraint("Vertical", 4))
sketch16.addConstraint(Sketcher.Constraint("Horizontal", 6))
sketch16.addConstraint(Sketcher.Constraint("Horizontal", 7))
sketch16.addConstraint(Sketcher.Constraint("Coincident", 7, 1, 1, 2))
sketch16.addConstraint(Sketcher.Constraint("Equal", 1, 7))
sketch16.addConstraint(Sketcher.Constraint("DistanceX", 3, 2, 3, 1, 3.0))
sketch16.addConstraint(Sketcher.Constraint("Angle", 0, Q("-120 deg")))
sketch16.addConstraint(Sketcher.Constraint("Angle", 5, Q("-135 deg")))
sketch16.addConstraint(Sketcher.Constraint("DistanceX", -1, 1, 1, 2, 15.0))
sketch16.addConstraint(Sketcher.Constraint("DistanceY", 1, 2, 4, 2, 2.0))
sketch16.addConstraint(Sketcher.Constraint("DistanceY", 2, 1, 2, 2, 2.85))
sketch16.addConstraint(Sketcher.Constraint("DistanceY", -1, 1, 0, 2, 11.5))
sketch16.addConstraint(Sketcher.Constraint("DistanceX", -1, 1, 6, 2, 4.8))
sketch16.addConstraint(Sketcher.Constraint("DistanceX", 6, 2, 6, 1, 6.821))
sketch16.setExpression("Constraints[15]", "Params.sketch16_width")
sketch16.setExpression("Constraints[20]", "Params.sketch16_height")
groove7 = body.newObject("PartDesign::Groove", "Groove006")
groove7.Profile = sketch16
groove7.ReferenceAxis = (sketch16, ["Axis0"])
groove7.setExpression("Angle", "Params.groove7_angle")

sketch17 = body.newObject("Sketcher::SketchObject", "Sketch016")
sketch17.AttachmentSupport = (doc.getObject("YZ_Plane"), [""])
sketch17.MapMode = "FlatFace"
sketch17.AttachmentOffset = App.Placement(Vector(0, 0, -11.5), App.Rotation())
add_polygon(sketch17, [(15, 29.6), (15, 32.5), (3.9, 32.5), (4.8, 30.9), (11.6, 30.9), (12, 30.5), (12, 29.6)])
sketch17.addGeometry(Part.LineSegment(Vector(3.9, 32.5, 0), Vector(15, 32.5, 0)), True)
sketch17.addConstraint(Sketcher.Constraint("Vertical", 0))
sketch17.addConstraint(Sketcher.Constraint("Horizontal", 1))
sketch17.addConstraint(Sketcher.Constraint("Horizontal", 3))
sketch17.addConstraint(Sketcher.Constraint("Vertical", 5))
sketch17.addConstraint(Sketcher.Constraint("Horizontal", 6))
sketch17.addConstraint(Sketcher.Constraint("Horizontal", 7))
sketch17.addConstraint(Sketcher.Constraint("Coincident", 7, 1, 1, 2))
sketch17.addConstraint(Sketcher.Constraint("Vertical", 6, 2, 7, 2))
sketch17.addConstraint(Sketcher.Constraint("DistanceX", 6, 1, 6, 2, 3.0))
sketch17.addConstraint(Sketcher.Constraint("Angle", 2, Q("-60 deg")))
sketch17.addConstraint(Sketcher.Constraint("Angle", 4, Q("-45 deg")))
sketch17.addConstraint(Sketcher.Constraint("DistanceX", -1, 1, 0, 2, 15.0))
sketch17.addConstraint(Sketcher.Constraint("DistanceY", 4, 2, 0, 2, 2.0))
sketch17.addConstraint(Sketcher.Constraint("DistanceY", 0, 1, 0, 2, 2.85))
sketch17.addConstraint(Sketcher.Constraint("DistanceY", -1, 1, 0, 2, 32.5))
sketch17.addConstraint(Sketcher.Constraint("DistanceX", -1, 1, 2, 2, 4.8))
sketch17.addConstraint(Sketcher.Constraint("DistanceX", 3, 1, 3, 2, 6.821))
sketch17.setExpression("Constraints[15]", "Params.sketch17_width")
sketch17.setExpression("Constraints[20]", "Params.sketch17_height")
groove8 = body.newObject("PartDesign::Groove", "Groove007")
groove8.Profile = sketch17
groove8.ReferenceAxis = (sketch17, ["Axis0"])
groove8.setExpression("Angle", "Params.groove8_angle")

doc.recompute()
